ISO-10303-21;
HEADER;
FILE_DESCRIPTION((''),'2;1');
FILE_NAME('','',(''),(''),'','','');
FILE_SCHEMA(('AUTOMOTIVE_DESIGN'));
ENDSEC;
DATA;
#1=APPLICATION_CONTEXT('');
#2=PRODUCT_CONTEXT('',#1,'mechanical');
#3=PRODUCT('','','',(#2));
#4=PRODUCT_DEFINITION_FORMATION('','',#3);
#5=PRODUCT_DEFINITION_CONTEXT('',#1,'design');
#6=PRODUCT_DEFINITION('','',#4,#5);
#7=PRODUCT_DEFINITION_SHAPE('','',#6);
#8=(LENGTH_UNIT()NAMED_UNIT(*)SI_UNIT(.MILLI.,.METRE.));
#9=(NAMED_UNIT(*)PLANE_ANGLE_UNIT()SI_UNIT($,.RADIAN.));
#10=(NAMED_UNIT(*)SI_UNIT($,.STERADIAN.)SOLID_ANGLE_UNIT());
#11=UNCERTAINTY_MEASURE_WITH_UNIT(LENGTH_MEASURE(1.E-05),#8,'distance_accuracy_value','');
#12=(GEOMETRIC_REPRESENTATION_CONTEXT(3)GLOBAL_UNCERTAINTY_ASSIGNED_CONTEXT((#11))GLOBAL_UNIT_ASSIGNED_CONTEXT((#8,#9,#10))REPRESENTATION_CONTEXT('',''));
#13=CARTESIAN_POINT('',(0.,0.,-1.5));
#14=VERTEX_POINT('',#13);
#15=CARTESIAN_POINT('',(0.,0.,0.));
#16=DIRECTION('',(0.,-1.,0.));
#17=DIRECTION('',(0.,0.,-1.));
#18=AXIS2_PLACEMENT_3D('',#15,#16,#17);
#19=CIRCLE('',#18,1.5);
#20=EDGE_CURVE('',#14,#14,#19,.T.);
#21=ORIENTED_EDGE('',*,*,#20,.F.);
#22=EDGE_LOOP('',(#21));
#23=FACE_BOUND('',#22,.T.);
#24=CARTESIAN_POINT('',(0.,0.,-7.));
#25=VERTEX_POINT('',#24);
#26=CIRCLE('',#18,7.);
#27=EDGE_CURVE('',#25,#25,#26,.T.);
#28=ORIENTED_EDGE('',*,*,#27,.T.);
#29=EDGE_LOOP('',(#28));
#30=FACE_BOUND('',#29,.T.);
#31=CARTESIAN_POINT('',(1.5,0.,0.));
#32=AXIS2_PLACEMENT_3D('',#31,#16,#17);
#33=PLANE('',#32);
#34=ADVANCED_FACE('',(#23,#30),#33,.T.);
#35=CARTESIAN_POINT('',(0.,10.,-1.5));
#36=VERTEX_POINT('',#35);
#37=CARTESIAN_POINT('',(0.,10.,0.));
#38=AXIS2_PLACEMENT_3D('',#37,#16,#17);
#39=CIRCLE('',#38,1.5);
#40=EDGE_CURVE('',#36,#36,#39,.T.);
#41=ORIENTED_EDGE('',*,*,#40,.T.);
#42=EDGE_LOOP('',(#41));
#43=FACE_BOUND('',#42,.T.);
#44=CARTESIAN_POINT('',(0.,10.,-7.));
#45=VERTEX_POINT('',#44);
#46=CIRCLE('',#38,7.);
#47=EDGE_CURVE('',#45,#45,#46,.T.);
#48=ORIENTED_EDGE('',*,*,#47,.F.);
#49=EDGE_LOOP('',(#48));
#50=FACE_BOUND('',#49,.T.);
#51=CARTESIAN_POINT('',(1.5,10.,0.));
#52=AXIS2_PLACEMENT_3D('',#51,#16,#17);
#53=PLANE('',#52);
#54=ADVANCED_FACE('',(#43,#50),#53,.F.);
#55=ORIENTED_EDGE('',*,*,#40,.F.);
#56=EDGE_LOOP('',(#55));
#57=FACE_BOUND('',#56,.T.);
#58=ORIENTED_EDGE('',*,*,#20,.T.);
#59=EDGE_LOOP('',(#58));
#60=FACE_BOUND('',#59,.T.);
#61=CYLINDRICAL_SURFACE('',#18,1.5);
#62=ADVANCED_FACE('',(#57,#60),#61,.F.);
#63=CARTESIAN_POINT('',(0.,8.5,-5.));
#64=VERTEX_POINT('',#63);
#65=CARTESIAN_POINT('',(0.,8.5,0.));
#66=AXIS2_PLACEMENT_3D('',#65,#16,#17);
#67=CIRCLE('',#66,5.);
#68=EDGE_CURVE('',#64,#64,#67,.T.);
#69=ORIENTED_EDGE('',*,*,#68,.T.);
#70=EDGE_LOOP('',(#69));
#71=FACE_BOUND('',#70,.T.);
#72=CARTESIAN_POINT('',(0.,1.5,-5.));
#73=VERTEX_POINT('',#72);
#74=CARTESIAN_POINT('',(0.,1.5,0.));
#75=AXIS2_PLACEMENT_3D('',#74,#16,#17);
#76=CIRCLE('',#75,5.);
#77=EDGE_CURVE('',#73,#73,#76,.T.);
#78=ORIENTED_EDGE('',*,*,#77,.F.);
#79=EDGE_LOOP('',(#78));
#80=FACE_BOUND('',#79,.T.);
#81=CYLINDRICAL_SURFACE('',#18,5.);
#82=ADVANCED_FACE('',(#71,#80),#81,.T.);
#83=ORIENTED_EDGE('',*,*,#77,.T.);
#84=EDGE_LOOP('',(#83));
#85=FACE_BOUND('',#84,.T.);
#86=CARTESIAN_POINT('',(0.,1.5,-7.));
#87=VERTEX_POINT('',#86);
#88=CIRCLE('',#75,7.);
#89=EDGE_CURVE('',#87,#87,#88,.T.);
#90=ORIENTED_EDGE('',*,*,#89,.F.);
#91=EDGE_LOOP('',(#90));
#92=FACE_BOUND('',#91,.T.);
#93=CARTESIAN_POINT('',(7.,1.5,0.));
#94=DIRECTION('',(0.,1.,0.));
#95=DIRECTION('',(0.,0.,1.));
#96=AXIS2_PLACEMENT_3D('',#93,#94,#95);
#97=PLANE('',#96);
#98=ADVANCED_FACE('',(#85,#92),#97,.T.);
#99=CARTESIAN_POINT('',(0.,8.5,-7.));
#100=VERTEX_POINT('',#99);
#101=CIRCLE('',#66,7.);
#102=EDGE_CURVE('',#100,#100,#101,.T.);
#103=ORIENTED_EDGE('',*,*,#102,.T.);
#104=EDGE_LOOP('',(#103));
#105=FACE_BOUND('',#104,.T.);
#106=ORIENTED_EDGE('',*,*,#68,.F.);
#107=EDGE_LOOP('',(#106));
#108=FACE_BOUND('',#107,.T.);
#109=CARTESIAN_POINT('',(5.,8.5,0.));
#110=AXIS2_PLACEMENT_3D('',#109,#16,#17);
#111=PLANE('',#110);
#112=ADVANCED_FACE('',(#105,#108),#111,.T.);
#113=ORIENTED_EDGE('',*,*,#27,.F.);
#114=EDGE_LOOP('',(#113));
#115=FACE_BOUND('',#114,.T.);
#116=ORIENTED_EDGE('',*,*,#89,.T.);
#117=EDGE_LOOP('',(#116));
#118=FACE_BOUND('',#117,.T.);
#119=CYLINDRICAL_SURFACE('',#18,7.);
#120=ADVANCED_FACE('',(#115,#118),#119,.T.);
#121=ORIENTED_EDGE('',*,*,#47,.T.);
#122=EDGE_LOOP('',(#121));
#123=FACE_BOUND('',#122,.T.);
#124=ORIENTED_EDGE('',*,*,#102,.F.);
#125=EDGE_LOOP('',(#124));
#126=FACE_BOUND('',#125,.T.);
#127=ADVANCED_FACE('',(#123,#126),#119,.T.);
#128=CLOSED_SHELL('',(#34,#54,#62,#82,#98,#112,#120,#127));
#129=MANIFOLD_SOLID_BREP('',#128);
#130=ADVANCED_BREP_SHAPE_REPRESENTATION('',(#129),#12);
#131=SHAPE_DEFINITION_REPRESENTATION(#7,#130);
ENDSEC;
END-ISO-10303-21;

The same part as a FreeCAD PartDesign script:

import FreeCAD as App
import Part
import Sketcher


def add_polygon(sketch, points):
    """Adds a closed chain of lines whose ends are joined by coincident constraints."""
    first, n = sketch.GeometryCount, len(points)
    for a, b in zip(points, points[1:] + points[:1]):
        sketch.addGeometry(Part.LineSegment(App.Vector(*a, 0), App.Vector(*b, 0)), False)
    for i in range(n):
        sketch.addConstraint(Sketcher.Constraint("Coincident", first + i, 2, first + (i + 1) % n, 1))

doc = App.newDocument("Part")
body = doc.addObject("PartDesign::Body", "Body")

# Sketch on XY plane
sketch1 = doc.addObject("Sketcher::SketchObject", "Sketch")
body.addObject(sketch1)
sketch1.AttachmentSupport = (doc.XY_Plane, [""])
sketch1.MapMode = "FlatFace"
add_polygon(sketch1, [(1.5, 0), (7, 0), (7, 1.5), (5, 1.5), (5, 8.5), (7, 8.5), (7, 10), (1.5, 10)])  # lines 0-7
sketch1.addConstraint(Sketcher.Constraint("Horizontal", 0))
sketch1.addConstraint(Sketcher.Constraint("Vertical", 1))
sketch1.addConstraint(Sketcher.Constraint("Horizontal", 2))
sketch1.addConstraint(Sketcher.Constraint("Vertical", 3))
sketch1.addConstraint(Sketcher.Constraint("Horizontal", 4))
sketch1.addConstraint(Sketcher.Constraint("Vertical", 5))
sketch1.addConstraint(Sketcher.Constraint("Horizontal", 6))
sketch1.addConstraint(Sketcher.Constraint("Vertical", 7))
sketch1.addConstraint(Sketcher.Constraint("PointOnObject", 0, 2, -1))
sketch1.addConstraint(Sketcher.Constraint("Vertical", 1, 2, 4, 2))
sketch1.addConstraint(Sketcher.Constraint("Equal", 1, 5))
sketch1.addConstraint(Sketcher.Constraint("DistanceX", 2, 2, 2, 1, 2.0))
sketch1.addConstraint(Sketcher.Constraint("DistanceY", 3, 1, 3, 2, 7.0))
sketch1.addConstraint(Sketcher.Constraint("DistanceY", 7, 2, 7, 1, 10.0))
sketch1.addConstraint(Sketcher.Constraint("DistanceX", 0, 1, 0, 2, 5.5))
sketch1.addConstraint(Sketcher.Constraint("DistanceX", -1, 1, 0, 2, 7.0))
revolution = doc.addObject("PartDesign::Revolution", "Revolution")
body.addObject(revolution)
revolution.Profile = sketch1
revolution.ReferenceAxis = (sketch1, ["V_Axis"])
revolution.Angle = 360

doc.recompute()
